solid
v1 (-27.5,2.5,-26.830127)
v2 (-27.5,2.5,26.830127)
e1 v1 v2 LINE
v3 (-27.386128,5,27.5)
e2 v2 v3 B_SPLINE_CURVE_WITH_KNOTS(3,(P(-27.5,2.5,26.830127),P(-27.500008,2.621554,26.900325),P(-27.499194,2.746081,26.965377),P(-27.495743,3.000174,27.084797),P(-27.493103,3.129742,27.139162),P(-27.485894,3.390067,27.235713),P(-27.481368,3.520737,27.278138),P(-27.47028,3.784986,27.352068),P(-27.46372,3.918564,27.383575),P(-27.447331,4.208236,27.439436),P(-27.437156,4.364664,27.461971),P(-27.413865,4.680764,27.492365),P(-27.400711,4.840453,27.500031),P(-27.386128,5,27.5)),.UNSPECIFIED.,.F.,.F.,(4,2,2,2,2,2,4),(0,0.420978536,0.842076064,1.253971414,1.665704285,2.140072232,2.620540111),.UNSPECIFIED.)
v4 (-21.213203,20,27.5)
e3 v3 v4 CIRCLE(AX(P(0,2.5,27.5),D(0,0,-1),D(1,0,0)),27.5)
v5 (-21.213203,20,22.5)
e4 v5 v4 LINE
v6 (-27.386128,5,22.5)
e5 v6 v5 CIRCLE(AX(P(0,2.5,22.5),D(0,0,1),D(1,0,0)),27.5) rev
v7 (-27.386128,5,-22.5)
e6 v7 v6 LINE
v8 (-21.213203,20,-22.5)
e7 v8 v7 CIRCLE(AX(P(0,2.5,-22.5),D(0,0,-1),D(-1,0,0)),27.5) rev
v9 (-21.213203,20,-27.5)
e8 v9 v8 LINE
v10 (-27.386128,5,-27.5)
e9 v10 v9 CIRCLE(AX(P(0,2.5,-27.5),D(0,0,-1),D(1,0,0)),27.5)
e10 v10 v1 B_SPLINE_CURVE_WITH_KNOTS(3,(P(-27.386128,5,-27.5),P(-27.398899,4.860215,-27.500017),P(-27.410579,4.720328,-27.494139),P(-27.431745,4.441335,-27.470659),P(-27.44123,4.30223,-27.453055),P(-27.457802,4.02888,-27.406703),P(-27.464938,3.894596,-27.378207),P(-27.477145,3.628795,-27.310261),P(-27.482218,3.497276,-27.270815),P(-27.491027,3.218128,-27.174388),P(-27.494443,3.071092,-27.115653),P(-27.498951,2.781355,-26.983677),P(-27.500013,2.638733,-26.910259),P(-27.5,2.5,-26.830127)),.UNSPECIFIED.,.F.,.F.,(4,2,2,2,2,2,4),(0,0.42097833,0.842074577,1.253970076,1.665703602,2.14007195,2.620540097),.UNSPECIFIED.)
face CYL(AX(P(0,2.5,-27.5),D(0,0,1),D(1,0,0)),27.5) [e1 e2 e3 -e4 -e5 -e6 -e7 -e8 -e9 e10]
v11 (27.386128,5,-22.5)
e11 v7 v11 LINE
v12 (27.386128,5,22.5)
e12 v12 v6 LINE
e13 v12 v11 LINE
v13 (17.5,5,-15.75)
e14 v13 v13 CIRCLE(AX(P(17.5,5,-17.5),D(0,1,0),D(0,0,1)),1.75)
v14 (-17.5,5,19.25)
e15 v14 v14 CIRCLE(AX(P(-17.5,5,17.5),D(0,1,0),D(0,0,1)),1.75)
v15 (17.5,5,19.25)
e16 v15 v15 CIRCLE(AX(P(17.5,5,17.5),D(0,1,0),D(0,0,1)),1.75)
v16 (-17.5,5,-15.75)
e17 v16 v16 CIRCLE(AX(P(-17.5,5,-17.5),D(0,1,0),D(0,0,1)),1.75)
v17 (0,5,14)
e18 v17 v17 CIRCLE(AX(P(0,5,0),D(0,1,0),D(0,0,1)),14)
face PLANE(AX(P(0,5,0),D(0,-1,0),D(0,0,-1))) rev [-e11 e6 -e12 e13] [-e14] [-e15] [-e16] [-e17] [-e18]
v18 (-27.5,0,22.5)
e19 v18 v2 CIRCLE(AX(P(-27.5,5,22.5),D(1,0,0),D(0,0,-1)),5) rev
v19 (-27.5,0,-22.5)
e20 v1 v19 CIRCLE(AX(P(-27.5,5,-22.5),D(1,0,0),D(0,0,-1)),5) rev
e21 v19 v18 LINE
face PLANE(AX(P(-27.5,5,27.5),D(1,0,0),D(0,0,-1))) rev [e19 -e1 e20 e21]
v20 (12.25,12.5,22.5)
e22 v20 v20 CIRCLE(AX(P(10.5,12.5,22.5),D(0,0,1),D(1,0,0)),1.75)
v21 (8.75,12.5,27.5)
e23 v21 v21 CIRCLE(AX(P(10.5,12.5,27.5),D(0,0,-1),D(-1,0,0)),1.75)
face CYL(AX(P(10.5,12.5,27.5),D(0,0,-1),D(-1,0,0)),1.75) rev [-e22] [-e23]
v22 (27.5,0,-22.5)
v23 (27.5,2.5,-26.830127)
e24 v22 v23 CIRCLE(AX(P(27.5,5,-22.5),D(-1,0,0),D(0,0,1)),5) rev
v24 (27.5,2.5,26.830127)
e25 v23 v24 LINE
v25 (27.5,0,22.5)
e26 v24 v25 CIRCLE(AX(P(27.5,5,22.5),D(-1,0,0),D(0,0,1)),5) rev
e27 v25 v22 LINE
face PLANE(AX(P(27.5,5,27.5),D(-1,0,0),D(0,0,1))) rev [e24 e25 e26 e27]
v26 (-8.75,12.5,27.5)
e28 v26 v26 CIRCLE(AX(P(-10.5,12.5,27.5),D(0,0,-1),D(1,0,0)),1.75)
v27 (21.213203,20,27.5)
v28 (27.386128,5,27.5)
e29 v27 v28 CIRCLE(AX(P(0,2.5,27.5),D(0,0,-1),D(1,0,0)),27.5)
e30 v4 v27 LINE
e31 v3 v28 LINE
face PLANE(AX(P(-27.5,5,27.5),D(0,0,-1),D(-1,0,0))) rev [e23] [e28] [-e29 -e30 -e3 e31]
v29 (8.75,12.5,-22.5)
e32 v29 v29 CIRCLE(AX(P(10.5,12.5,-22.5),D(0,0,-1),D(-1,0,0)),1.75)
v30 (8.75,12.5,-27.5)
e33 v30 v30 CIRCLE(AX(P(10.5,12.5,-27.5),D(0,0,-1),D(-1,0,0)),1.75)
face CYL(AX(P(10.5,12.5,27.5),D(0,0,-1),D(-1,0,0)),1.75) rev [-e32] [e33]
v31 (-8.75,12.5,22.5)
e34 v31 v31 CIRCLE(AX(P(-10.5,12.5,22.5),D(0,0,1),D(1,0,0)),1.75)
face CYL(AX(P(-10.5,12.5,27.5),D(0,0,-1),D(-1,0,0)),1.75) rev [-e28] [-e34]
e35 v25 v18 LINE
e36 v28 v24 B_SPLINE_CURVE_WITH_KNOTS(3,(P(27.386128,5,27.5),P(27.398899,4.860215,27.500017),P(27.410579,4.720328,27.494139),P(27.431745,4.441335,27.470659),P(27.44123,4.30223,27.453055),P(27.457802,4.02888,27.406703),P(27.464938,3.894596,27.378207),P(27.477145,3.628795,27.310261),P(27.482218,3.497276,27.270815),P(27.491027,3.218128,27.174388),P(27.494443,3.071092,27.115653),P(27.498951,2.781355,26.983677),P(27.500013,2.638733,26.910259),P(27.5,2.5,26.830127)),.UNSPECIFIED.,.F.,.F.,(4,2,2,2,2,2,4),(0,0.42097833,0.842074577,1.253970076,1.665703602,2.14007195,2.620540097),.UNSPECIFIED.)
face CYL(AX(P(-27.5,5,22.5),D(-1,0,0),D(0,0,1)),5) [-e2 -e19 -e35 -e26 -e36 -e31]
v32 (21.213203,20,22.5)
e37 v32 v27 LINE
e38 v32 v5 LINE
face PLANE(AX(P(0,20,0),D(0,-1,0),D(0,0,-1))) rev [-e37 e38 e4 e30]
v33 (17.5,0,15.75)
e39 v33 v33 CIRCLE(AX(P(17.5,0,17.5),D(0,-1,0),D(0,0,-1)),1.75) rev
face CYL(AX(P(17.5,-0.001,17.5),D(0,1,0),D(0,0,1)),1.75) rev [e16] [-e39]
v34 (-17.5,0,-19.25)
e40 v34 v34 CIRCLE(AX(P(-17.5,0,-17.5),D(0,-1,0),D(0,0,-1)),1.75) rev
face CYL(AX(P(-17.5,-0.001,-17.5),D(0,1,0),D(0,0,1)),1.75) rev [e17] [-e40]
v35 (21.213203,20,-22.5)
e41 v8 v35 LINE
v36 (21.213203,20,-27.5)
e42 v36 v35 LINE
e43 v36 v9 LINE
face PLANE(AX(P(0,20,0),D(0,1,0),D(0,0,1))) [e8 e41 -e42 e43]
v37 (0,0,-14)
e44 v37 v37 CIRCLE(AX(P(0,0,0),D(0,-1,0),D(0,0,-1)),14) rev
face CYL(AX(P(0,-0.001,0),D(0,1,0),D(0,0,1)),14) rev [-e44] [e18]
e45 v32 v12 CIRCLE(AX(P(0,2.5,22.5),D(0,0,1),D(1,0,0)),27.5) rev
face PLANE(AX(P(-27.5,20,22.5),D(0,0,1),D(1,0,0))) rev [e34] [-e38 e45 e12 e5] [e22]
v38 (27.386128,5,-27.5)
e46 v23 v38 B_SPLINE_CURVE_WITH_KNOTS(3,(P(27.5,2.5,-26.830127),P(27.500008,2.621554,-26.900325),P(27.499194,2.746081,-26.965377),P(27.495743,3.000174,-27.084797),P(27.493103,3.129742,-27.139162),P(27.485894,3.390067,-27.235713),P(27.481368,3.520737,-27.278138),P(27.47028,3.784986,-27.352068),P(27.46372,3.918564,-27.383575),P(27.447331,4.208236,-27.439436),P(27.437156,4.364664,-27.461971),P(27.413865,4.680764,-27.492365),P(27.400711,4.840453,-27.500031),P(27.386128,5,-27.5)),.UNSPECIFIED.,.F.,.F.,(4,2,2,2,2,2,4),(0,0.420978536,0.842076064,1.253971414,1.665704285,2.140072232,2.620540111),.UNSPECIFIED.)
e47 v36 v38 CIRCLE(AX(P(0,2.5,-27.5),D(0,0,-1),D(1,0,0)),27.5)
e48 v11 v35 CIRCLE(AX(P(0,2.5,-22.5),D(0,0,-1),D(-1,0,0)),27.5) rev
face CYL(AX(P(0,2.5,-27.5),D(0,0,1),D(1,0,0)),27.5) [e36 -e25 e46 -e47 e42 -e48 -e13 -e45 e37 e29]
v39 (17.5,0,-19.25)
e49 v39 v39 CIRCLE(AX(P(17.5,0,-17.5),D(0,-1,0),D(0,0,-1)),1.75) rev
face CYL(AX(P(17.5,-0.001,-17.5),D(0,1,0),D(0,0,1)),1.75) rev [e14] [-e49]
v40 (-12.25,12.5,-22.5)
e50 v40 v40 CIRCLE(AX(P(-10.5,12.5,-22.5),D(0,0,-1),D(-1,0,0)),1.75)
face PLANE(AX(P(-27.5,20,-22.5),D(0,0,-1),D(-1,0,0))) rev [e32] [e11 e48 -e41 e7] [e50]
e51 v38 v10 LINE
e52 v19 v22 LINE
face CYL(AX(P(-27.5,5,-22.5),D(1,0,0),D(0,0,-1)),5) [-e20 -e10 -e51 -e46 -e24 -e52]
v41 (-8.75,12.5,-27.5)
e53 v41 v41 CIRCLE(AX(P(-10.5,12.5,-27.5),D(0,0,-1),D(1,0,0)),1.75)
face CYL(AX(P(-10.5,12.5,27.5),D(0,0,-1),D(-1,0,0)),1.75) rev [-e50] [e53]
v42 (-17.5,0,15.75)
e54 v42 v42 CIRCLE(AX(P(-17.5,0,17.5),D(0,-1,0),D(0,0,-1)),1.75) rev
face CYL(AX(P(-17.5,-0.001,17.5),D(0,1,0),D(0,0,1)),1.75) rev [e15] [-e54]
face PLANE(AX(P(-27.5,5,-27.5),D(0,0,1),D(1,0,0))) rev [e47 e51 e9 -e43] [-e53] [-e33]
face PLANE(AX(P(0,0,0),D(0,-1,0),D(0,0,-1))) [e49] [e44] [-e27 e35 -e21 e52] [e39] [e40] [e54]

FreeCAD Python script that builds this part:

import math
import FreeCAD as App
import Part
import Sketcher

V = App.Vector
Q = App.Units.Quantity


def edges_at(feature, points):
    """Names of the edges that pass closest to the given points."""
    edges = feature.Shape.Edges
    near = lambda p: min(range(len(edges)), key=lambda i: edges[i].distToShape(Part.Vertex(*p))[0])
    return sorted({f"Edge{near(p) + 1}" for p in points})

doc = App.newDocument("Part")
body = doc.addObject("PartDesign::Body", "Body")

# Sketch on XZ plane
sketch1 = body.newObject("Sketcher::SketchObject", "Sketch")
sketch1.AttachmentSupport = (doc.getObject("XZ_Plane"), [""])
sketch1.MapMode = "FlatFace"
sketch1.addGeometry(Part.LineSegment(V(-28, -28, 0), V(-28, 28, 0)), False)
sketch1.addGeometry(Part.LineSegment(V(-28, 28, 0), V(28, 28, 0)), False)
sketch1.addGeometry(Part.LineSegment(V(28, 28, 0), V(28, -28, 0)), False)
sketch1.addGeometry(Part.LineSegment(V(28, -28, 0), V(-28, -28, 0)), False)
sketch1.addConstraint(Sketcher.Constraint("Coincident", 0, 2, 1, 1))
sketch1.addConstraint(Sketcher.Constraint("Coincident", 1, 2, 2, 1))
sketch1.addConstraint(Sketcher.Constraint("Coincident", 2, 2, 3, 1))
sketch1.addConstraint(Sketcher.Constraint("Coincident", 3, 2, 0, 1))
sketch1.addConstraint(Sketcher.Constraint("Vertical", 0))
sketch1.addConstraint(Sketcher.Constraint("Horizontal", 1))
sketch1.addConstraint(Sketcher.Constraint("Vertical", 2))
sketch1.addConstraint(Sketcher.Constraint("Horizontal", 3))
sketch1.addConstraint(Sketcher.Constraint("Symmetric", 0, 2, 2, 2, -1, 1))
sketch1.addConstraint(Sketcher.Constraint("Equal", 3, 0))
sketch1.addConstraint(Sketcher.Constraint("DistanceX", 1, 1, 1, 2, Q("55 mm")))
pad1 = body.newObject("PartDesign::Pad", "Pad")
pad1.Profile = sketch1
pad1.Length = 5
pad1.Reversed = True

# Sketch on XZ plane
sketch2 = body.newObject("Sketcher::SketchObject", "Sketch001")
sketch2.AttachmentSupport = (doc.getObject("XZ_Plane"), [""])
sketch2.MapMode = "FlatFace"
sketch2.AttachmentOffset = App.Placement(V(0, 0, -5), App.Rotation())
sketch2.addGeometry(Part.Circle(V(0, 0, 0), V(0, 0, 1), 14), False)
sketch2.addConstraint(Sketcher.Constraint("Coincident", 0, 3, -1, 1))
sketch2.addConstraint(Sketcher.Constraint("Diameter", 0, Q("28 mm")))
pocket1 = body.newObject("PartDesign::Pocket", "Pocket")
pocket1.Profile = sketch2
pocket1.Type = "UpToFirst"
pocket1.Reversed = True

# Sketch on XZ plane
sketch3 = body.newObject("Sketcher::SketchObject", "Sketch002")
sketch3.AttachmentSupport = (doc.getObject("XZ_Plane"), [""])
sketch3.MapMode = "FlatFace"
sketch3.AttachmentOffset = App.Placement(V(0, 0, -5), App.Rotation())
sketch3.addGeometry(Part.Circle(V(-17.5, -17.5, 0), V(0, 0, 1), 1.8), False)
sketch3.addConstraint(Sketcher.Constraint("Diameter", 0, Q("3.5 mm")))
sketch3.addConstraint(Sketcher.Constraint("DistanceX", 0, 3, -1, 1, Q("17.5 mm")))
sketch3.addConstraint(Sketcher.Constraint("DistanceY", 0, 3, -1, 1, Q("17.5 mm")))
pocket2 = body.newObject("PartDesign::Pocket", "Pocket001")
pocket2.Profile = sketch3
pocket2.Type = "UpToFirst"
pocket2.Reversed = True

# Sketch on XZ plane
sketch4 = body.newObject("Sketcher::SketchObject", "Sketch003")
sketch4.AttachmentSupport = (doc.getObject("XZ_Plane"), [""])
sketch4.MapMode = "FlatFace"
sketch4.AttachmentOffset = App.Placement(V(0, 0, -5), App.Rotation())
sketch4.addGeometry(Part.Circle(V(17.5, -17.5, 0), V(0, 0, 1), 1.8), False)
sketch4.addConstraint(Sketcher.Constraint("Diameter", 0, Q("3.5 mm")))
sketch4.addConstraint(Sketcher.Constraint("DistanceX", -1, 1, 0, 3, Q("17.5 mm")))
sketch4.addConstraint(Sketcher.Constraint("DistanceY", 0, 3, -1, 1, Q("17.5 mm")))
pocket3 = body.newObject("PartDesign::Pocket", "Pocket002")
pocket3.Profile = sketch4
pocket3.Type = "UpToFirst"
pocket3.Reversed = True

# Sketch on XZ plane
sketch5 = body.newObject("Sketcher::SketchObject", "Sketch004")
sketch5.AttachmentSupport = (doc.getObject("XZ_Plane"), [""])
sketch5.MapMode = "FlatFace"
sketch5.AttachmentOffset = App.Placement(V(0, 0, -5), App.Rotation())
sketch5.addGeometry(Part.Circle(V(17.5, 17.5, 0), V(0, 0, 1), 1.8), False)
sketch5.addConstraint(Sketcher.Constraint("Diameter", 0, Q("3.5 mm")))
sketch5.addConstraint(Sketcher.Constraint("DistanceX", -1, 1, 0, 3, Q("17.5 mm")))
sketch5.addConstraint(Sketcher.Constraint("DistanceY", -1, 1, 0, 3, Q("17.5 mm")))
pocket4 = body.newObject("PartDesign::Pocket", "Pocket003")
pocket4.Profile = sketch5
pocket4.Type = "UpToFirst"
pocket4.Reversed = True

# Sketch on XZ plane
sketch6 = body.newObject("Sketcher::SketchObject", "Sketch005")
sketch6.AttachmentSupport = (doc.getObject("XZ_Plane"), [""])
sketch6.MapMode = "FlatFace"
sketch6.AttachmentOffset = App.Placement(V(0, 0, -5), App.Rotation())
sketch6.addGeometry(Part.Circle(V(-17.5, 17.5, 0), V(0, 0, 1), 1.8), False)
sketch6.addConstraint(Sketcher.Constraint("Diameter", 0, Q("3.5 mm")))
sketch6.addConstraint(Sketcher.Constraint("DistanceX", 0, 3, -1, 1, Q("17.5 mm")))
sketch6.addConstraint(Sketcher.Constraint("DistanceY", -1, 1, 0, 3, Q("17.5 mm")))
pocket5 = body.newObject("PartDesign::Pocket", "Pocket004")
pocket5.Profile = sketch6
pocket5.Type = "UpToFirst"
pocket5.Reversed = True

# Sketch on XZ plane
sketch7 = body.newObject("Sketcher::SketchObject", "Sketch006")
sketch7.AttachmentSupport = (doc.getObject("XZ_Plane"), [""])
sketch7.MapMode = "FlatFace"
sketch7.AttachmentOffset = App.Placement(V(0, 0, -5), App.Rotation())
sketch7.addGeometry(Part.LineSegment(V(-28, -28, 0), V(-28, -22, 0)), False)
sketch7.addGeometry(Part.LineSegment(V(-28, -22, 0), V(28, -22, 0)), False)
sketch7.addGeometry(Part.LineSegment(V(28, -22, 0), V(28, -28, 0)), False)
sketch7.addGeometry(Part.LineSegment(V(28, -28, 0), V(-28, -28, 0)), False)
sketch7.addGeometry(Part.LineSegment(V(-28, 22, 0), V(-28, 28, 0)), False)
sketch7.addGeometry(Part.LineSegment(V(-28, 28, 0), V(28, 28, 0)), False)
sketch7.addGeometry(Part.LineSegment(V(28, 28, 0), V(28, 22, 0)), False)
sketch7.addGeometry(Part.LineSegment(V(28, 22, 0), V(-28, 22, 0)), False)
sketch7.addConstraint(Sketcher.Constraint("Coincident", 0, 2, 1, 1))
sketch7.addConstraint(Sketcher.Constraint("Coincident", 1, 2, 2, 1))
sketch7.addConstraint(Sketcher.Constraint("Coincident", 2, 2, 3, 1))
sketch7.addConstraint(Sketcher.Constraint("Coincident", 3, 2, 0, 1))
sketch7.addConstraint(Sketcher.Constraint("Coincident", 4, 2, 5, 1))
sketch7.addConstraint(Sketcher.Constraint("Coincident", 5, 2, 6, 1))
sketch7.addConstraint(Sketcher.Constraint("Coincident", 6, 2, 7, 1))
sketch7.addConstraint(Sketcher.Constraint("Coincident", 7, 2, 4, 1))
sketch7.addConstraint(Sketcher.Constraint("Vertical", 0))
sketch7.addConstraint(Sketcher.Constraint("Horizontal", 1))
sketch7.addConstraint(Sketcher.Constraint("Vertical", 2))
sketch7.addConstraint(Sketcher.Constraint("Horizontal", 3))
sketch7.addConstraint(Sketcher.Constraint("Vertical", 4))
sketch7.addConstraint(Sketcher.Constraint("Horizontal", 5))
sketch7.addConstraint(Sketcher.Constraint("Vertical", 6))
sketch7.addConstraint(Sketcher.Constraint("Horizontal", 7))
sketch7.addConstraint(Sketcher.Constraint("Symmetric", 2, 2, 4, 2, -1, 1))
sketch7.addConstraint(Sketcher.Constraint("Symmetric", 0, 2, 6, 2, -1, 1))
sketch7.addConstraint(Sketcher.Constraint("Vertical", 3, 2, 4, 2))
sketch7.addConstraint(Sketcher.Constraint("DistanceX", 1, 1, 1, 2, Q("55 mm")))
sketch7.addConstraint(Sketcher.Constraint("DistanceY", 0, 1, 0, 2, Q("5 mm")))
sketch7.addConstraint(Sketcher.Constraint("DistanceY", 0, 2, 4, 2, Q("50 mm")))
pad2 = body.newObject("PartDesign::Pad", "Pad001")
pad2.Profile = sketch7
pad2.Length = 15
pad2.Reversed = True
doc.recompute()

fillet = body.newObject("PartDesign::Fillet", "Fillet")
fillet.Base = (pad2, edges_at(pad2, [(0, 0, 27.5), (0, 0, -27.5)]))
fillet.Radius = 5

# Sketch on XY plane
sketch8 = body.newObject("Sketcher::SketchObject", "Sketch007")
sketch8.AttachmentSupport = (doc.getObject("XY_Plane"), [""])
sketch8.MapMode = "FlatFace"
sketch8.AttachmentOffset = App.Placement(V(0, 0, -27.5), App.Rotation())
sketch8.addGeometry(Part.Circle(V(10.5, 12.5, 0), V(0, 0, 1), 1.8), False)
sketch8.addGeometry(Part.Circle(V(-10.5, 12.5, 0), V(0, 0, 1), 1.8), False)
sketch8.addConstraint(Sketcher.Constraint("Equal", 0, 1))
sketch8.addConstraint(Sketcher.Constraint("Symmetric", 0, 3, 1, 3, -2))
sketch8.addConstraint(Sketcher.Constraint("Diameter", 0, Q("3.5 mm")))
sketch8.addConstraint(Sketcher.Constraint("DistanceX", 1, 3, 0, 3, Q("21 mm")))
sketch8.addConstraint(Sketcher.Constraint("DistanceY", -1, 1, 0, 3, Q("12.5 mm")))
pocket6 = body.newObject("PartDesign::Pocket", "Pocket005")
pocket6.Profile = sketch8
pocket6.Type = "ThroughAll"
pocket6.Reversed = True

# Sketch on XY plane
sketch9 = body.newObject("Sketcher::SketchObject", "Sketch008")
sketch9.AttachmentSupport = (doc.getObject("XY_Plane"), [""])
sketch9.MapMode = "FlatFace"
sketch9.AttachmentOffset = App.Placement(V(0, 0, 27.5), App.Rotation())
sketch9.addGeometry(Part.LineSegment(V(-28, 20, 0), V(-28, 2, 0)), False)
sketch9.addGeometry(Part.ArcOfCircle(Part.Circle(V(0, 2, 0), V(0, 0, 1), 28), math.radians(140), math.radians(180)), False)
sketch9.addGeometry(Part.LineSegment(V(-21, 20, 0), V(-28, 20, 0)), False)
sketch9.addGeometry(Part.LineSegment(V(28, 20, 0), V(21, 20, 0)), False)
sketch9.addGeometry(Part.ArcOfCircle(Part.Circle(V(0, 2, 0), V(0, 0, 1), 28), math.radians(0), math.radians(40)), False)
sketch9.addGeometry(Part.LineSegment(V(28, 2, 0), V(28, 20, 0)), False)
sketch9.addConstraint(Sketcher.Constraint("Tangent", 0, 2, 1, 2))
sketch9.addConstraint(Sketcher.Constraint("Coincident", 1, 1, 2, 1))
sketch9.addConstraint(Sketcher.Constraint("Coincident", 2, 2, 0, 1))
sketch9.addConstraint(Sketcher.Constraint("Coincident", 3, 2, 4, 2))
sketch9.addConstraint(Sketcher.Constraint("Tangent", 4, 1, 5, 1))
sketch9.addConstraint(Sketcher.Constraint("Coincident", 5, 2, 3, 1))
sketch9.addConstraint(Sketcher.Constraint("Vertical", 0))
sketch9.addConstraint(Sketcher.Constraint("Horizontal", 2))
sketch9.addConstraint(Sketcher.Constraint("Horizontal", 3))
sketch9.addConstraint(Sketcher.Constraint("Vertical", 5))
sketch9.addConstraint(Sketcher.Constraint("Coincident", 4, 3, 1, 3))
sketch9.addConstraint(Sketcher.Constraint("Equal", 1, 4))
sketch9.addConstraint(Sketcher.Constraint("Symmetric", 1, 1, 3, 2, -2))
sketch9.addConstraint(Sketcher.Constraint("Radius", 1, Q("27.5 mm")))
sketch9.addConstraint(Sketcher.Constraint("DistanceY", 0, 2, 0, 1, Q("17.5 mm")))
sketch9.addConstraint(Sketcher.Constraint("DistanceY", -1, 1, 1, 1, Q("20 mm")))
pocket7 = body.newObject("PartDesign::Pocket", "Pocket006")
pocket7.Profile = sketch9
pocket7.Type = "ThroughAll"

doc.recompute()
